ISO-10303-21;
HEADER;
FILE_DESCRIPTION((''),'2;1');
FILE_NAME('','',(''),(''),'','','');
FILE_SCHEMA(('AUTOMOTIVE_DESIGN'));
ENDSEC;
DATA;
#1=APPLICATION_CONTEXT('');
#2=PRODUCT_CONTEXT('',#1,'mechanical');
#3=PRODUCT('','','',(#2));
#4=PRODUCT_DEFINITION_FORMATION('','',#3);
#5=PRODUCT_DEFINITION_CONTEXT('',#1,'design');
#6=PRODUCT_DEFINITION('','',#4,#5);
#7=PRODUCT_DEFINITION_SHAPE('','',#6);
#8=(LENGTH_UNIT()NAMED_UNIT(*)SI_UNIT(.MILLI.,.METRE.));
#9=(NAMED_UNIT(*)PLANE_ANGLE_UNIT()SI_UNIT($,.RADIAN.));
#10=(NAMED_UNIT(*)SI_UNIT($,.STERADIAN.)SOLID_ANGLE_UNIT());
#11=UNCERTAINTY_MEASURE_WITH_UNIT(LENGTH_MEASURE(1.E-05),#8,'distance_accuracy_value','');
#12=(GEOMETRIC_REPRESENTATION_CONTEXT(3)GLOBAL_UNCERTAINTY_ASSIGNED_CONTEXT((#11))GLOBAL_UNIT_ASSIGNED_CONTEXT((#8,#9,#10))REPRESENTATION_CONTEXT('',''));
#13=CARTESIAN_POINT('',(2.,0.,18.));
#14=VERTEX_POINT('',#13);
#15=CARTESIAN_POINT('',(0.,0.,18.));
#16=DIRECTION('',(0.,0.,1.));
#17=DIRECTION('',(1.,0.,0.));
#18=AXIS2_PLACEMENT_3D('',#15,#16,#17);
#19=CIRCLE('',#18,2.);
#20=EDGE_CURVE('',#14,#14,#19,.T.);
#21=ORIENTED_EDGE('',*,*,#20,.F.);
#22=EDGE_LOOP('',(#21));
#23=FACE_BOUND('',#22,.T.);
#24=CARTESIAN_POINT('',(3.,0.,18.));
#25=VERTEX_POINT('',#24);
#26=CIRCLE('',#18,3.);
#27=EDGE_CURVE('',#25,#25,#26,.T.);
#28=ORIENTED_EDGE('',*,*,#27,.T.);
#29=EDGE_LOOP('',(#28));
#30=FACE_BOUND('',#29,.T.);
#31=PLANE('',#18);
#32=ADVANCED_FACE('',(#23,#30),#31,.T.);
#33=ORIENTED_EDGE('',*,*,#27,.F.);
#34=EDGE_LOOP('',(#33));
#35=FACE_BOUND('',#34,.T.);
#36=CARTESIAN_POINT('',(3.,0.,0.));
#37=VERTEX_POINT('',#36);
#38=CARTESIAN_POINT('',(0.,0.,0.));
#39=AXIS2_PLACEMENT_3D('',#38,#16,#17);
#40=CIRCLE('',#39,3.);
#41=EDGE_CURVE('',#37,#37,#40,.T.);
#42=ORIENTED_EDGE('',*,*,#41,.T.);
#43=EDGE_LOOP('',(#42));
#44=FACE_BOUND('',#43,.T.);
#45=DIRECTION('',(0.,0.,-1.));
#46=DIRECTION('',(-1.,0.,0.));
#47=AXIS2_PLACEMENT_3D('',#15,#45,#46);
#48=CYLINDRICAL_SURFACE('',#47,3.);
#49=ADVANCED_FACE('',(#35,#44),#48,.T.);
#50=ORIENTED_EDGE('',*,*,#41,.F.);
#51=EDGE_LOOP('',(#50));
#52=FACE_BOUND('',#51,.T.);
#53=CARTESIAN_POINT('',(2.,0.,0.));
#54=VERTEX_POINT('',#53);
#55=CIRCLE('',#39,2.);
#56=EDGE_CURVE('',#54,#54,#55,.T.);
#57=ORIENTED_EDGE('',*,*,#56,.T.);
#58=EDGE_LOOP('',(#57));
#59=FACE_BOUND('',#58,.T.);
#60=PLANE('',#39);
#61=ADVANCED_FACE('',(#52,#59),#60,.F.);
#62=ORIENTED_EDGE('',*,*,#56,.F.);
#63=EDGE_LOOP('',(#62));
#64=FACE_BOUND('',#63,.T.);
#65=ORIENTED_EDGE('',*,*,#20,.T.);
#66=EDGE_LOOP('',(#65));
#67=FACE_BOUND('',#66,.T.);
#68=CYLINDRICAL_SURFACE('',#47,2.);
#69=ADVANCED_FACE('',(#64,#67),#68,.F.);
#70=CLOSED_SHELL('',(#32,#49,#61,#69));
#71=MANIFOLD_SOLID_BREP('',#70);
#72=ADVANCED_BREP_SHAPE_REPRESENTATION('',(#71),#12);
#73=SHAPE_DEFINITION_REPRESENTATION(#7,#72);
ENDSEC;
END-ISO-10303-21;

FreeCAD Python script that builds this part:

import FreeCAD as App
import Part
import Sketcher
from FreeCAD import Vector
Q = App.Units.Quantity

doc = App.newDocument("Part")
params = doc.addObject("Spreadsheet::Sheet", "Params")
for row, (alias, value) in enumerate([
    ("sketch1_diameter", "6 mm"),
    ("sketch1_diameter2", "4 mm"),
    ("pad1_length", "18 mm"),
], start=1):
    params.set(f"A{row}", alias)
    params.set(f"B{row}", "=" + value)
    params.setAlias(f"B{row}", alias)

body = doc.addObject("PartDesign::Body", "Body")

sketch1 = body.newObject("Sketcher::SketchObject", "Sketch")
sketch1.AttachmentSupport = (doc.getObject("XY_Plane"), [""])
sketch1.MapMode = "FlatFace"
sketch1.addGeometry(Part.Circle(Vector(0, 0, 0), Vector(0, 0, 1), 3), False)
sketch1.addGeometry(Part.Circle(Vector(0, 0, 0), Vector(0, 0, 1), 2), False)
sketch1.addConstraint(Sketcher.Constraint("Coincident", 0, 3, -1, 1))
sketch1.addConstraint(Sketcher.Constraint("Coincident", 1, 3, -1, 1))
sketch1.addConstraint(Sketcher.Constraint("Diameter", 0, Q("6 mm")))
sketch1.addConstraint(Sketcher.Constraint("Diameter", 1, Q("4 mm")))
sketch1.setExpression("Constraints[2]", "Params.sketch1_diameter")
sketch1.setExpression("Constraints[3]", "Params.sketch1_diameter2")
pad1 = body.newObject("PartDesign::Pad", "Pad")
pad1.Profile = sketch1
pad1.setExpression("Length", "Params.pad1_length")

doc.recompute()
